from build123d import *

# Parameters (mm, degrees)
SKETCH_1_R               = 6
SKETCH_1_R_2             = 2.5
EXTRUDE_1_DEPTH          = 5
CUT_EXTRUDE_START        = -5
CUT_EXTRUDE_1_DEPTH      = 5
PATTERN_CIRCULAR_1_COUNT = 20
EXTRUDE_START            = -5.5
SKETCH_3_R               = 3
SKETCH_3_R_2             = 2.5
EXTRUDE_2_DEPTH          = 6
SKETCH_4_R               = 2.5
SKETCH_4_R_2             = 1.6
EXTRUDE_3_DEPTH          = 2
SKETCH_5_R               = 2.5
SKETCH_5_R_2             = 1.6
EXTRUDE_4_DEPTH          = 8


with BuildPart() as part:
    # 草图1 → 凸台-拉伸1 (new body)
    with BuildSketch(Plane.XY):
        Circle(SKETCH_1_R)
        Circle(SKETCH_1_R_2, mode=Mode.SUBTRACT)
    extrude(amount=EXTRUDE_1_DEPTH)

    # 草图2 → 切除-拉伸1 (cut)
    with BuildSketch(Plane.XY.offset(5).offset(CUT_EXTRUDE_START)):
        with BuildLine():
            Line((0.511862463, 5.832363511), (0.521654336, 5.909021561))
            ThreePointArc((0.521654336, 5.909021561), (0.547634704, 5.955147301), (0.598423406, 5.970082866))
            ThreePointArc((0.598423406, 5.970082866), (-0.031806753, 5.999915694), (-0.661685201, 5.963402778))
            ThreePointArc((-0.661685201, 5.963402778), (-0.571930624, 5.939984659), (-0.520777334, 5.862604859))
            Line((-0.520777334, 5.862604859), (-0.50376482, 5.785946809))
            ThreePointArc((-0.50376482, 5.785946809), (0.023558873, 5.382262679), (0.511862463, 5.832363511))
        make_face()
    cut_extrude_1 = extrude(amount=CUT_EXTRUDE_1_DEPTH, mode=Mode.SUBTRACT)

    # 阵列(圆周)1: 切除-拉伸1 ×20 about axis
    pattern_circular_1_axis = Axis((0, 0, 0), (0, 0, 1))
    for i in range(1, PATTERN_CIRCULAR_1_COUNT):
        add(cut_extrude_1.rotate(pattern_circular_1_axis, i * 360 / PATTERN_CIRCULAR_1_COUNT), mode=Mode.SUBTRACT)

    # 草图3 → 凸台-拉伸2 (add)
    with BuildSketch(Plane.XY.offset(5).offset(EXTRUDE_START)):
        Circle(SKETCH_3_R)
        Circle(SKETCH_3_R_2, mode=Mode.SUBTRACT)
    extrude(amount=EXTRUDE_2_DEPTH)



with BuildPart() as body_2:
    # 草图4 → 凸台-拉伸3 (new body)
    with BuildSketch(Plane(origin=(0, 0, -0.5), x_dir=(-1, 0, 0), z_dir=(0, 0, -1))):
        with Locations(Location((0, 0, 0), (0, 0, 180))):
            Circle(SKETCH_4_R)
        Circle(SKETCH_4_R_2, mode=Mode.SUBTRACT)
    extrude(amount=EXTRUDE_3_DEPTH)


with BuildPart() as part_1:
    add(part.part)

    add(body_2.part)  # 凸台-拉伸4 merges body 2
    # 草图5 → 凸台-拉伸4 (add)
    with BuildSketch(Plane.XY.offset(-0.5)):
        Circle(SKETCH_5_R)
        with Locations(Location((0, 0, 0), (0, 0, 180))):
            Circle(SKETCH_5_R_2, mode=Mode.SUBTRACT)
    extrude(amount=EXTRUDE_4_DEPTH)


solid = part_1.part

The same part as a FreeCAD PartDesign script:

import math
import FreeCAD as App
import Part
import Sketcher

V = App.Vector
Q = App.Units.Quantity

doc = App.newDocument("Part")
body = doc.addObject("PartDesign::Body", "Body")

# Sketch on XY plane
sketch1 = doc.addObject("Sketcher::SketchObject", "Sketch")
body.addObject(sketch1)
sketch1.AttachmentSupport = (doc.XY_Plane, [""])
sketch1.MapMode = "FlatFace"
sketch1.addGeometry([
    Part.Circle(V(0, 0, 0), V(0, 0, 1), 6),
    Part.Circle(V(0, 0, 0), V(0, 0, 1), 2.5),
], False)
sketch1.addConstraint([
    Sketcher.Constraint("Coincident", 0, 3, -1, 1),
    Sketcher.Constraint("Coincident", 1, 3, -1, 1),
    Sketcher.Constraint("Diameter", 0, Q("12 mm")),
    Sketcher.Constraint("Diameter", 1, Q("5 mm")),
])
pad1 = doc.addObject("PartDesign::Pad", "Pad")
body.addObject(pad1)
pad1.Profile = sketch1
pad1.Length = 5

# Sketch on XY plane
sketch2 = doc.addObject("Sketcher::SketchObject", "Sketch001")
body.addObject(sketch2)
sketch2.AttachmentSupport = (doc.XY_Plane, [""])
sketch2.MapMode = "FlatFace"
sketch2.addGeometry([
    Part.LineSegment(V(0.511862, 5.832364, 0), V(0.521654, 5.909022, 0)),  # 0
    Part.ArcOfCircle(Part.Circle(V(0.59141, 5.900111, 0), V(0, 0, 1), 0.070322), math.radians(84.275961), math.radians(172.720775)),  # 1
    Part.ArcOfCircle(Part.Circle(V(0, 0, 0), V(0, 0, 1), 6), math.radians(84.27596), math.radians(96.331507)),  # 2
    Part.ArcOfCircle(Part.Circle(V(-0.647383, 5.834508, 0), V(0, 0, 1), 0.129686), math.radians(12.512704), math.radians(96.331507)),  # 3
    Part.LineSegment(V(-0.520777, 5.862605, 0), V(-0.503765, 5.785947, 0)),  # 4
    Part.ArcOfCircle(Part.Circle(V(0, 5.897746, 0), V(0, 0, 1), 0.516021), math.radians(-167.487296), math.radians(-7.279225)),  # 5
], False)
sketch2.addConstraint([
    Sketcher.Constraint("Tangent", 0, 2, 1, 2),
    Sketcher.Constraint("Tangent", 1, 1, 2, 1),
    Sketcher.Constraint("Tangent", 2, 2, 3, 2),
    Sketcher.Constraint("Tangent", 3, 1, 4, 1),
    Sketcher.Constraint("Tangent", 4, 2, 5, 1),
    Sketcher.Constraint("Tangent", 5, 2, 0, 1),
    Sketcher.Constraint("Coincident", 2, 3, -1, 1),
    Sketcher.Constraint("PointOnObject", 5, 3, -2),
    Sketcher.Constraint("Radius", 2, Q("6 mm")),
    Sketcher.Constraint("Radius", 5, Q("0.516021 mm")),
    Sketcher.Constraint("Radius", 1, Q("0.070322 mm")),
    Sketcher.Constraint("Radius", 3, Q("0.129686 mm")),
    Sketcher.Constraint("DistanceY", 4, 2, 5, 3, Q("0.111799 mm")),
    Sketcher.Constraint("Distance", 0, Q("0.077281 mm")),
    Sketcher.Constraint("DistanceY", -1, 1, 0, 2, Q("5.909022 mm")),
])
pocket1 = doc.addObject("PartDesign::Pocket", "Pocket")
body.addObject(pocket1)
pocket1.Profile = sketch2
pocket1.Length = 5
pocket1.Reversed = True
doc.recompute()

polarpattern = doc.addObject("PartDesign::PolarPattern", "PolarPattern")
body.addObject(polarpattern)
polarpattern.Originals = [pocket1]
polarpattern.Axis = (doc.Z_Axis, [""])
polarpattern.Angle = 360
polarpattern.Occurrences = 20
body.Tip = polarpattern

# Sketch on XY plane
sketch3 = doc.addObject("Sketcher::SketchObject", "Sketch002")
body.addObject(sketch3)
sketch3.AttachmentSupport = (doc.XY_Plane, [""])
sketch3.MapMode = "FlatFace"
sketch3.AttachmentOffset = App.Placement(V(0, 0, -0.5), App.Rotation())
sketch3.addGeometry([
    Part.Circle(V(0, 0, 0), V(0, 0, 1), 3),
    Part.Circle(V(0, 0, 0), V(0, 0, 1), 2.5),
], False)
sketch3.addConstraint([
    Sketcher.Constraint("Coincident", 0, 3, -1, 1),
    Sketcher.Constraint("Coincident", 1, 3, -1, 1),
    Sketcher.Constraint("Diameter", 0, Q("6 mm")),
    Sketcher.Constraint("Diameter", 1, Q("5 mm")),
])
pad2 = doc.addObject("PartDesign::Pad", "Pad001")
body.addObject(pad2)
pad2.Profile = sketch3
pad2.Length = 6
body2 = doc.addObject("PartDesign::Body", "Body001")

# Sketch on XY plane
sketch4 = doc.addObject("Sketcher::SketchObject", "Sketch003")
body2.addObject(sketch4)
sketch4.AttachmentSupport = (doc.getObject("XY_Plane001"), [""])
sketch4.MapMode = "FlatFace"
sketch4.AttachmentOffset = App.Placement(V(0, 0, -0.5), App.Rotation())
sketch4.addGeometry([
    Part.Circle(V(0, 0, 0), V(0, 0, 1), 2.5),
    Part.Circle(V(0, 0, 0), V(0, 0, 1), 1.6),
], False)
sketch4.addConstraint([
    Sketcher.Constraint("Coincident", 0, 3, -1, 1),
    Sketcher.Constraint("Coincident", 1, 3, -1, 1),
    Sketcher.Constraint("Diameter", 0, Q("5 mm")),
    Sketcher.Constraint("Diameter", 1, Q("3.2 mm")),
])
pad3 = doc.addObject("PartDesign::Pad", "Pad002")
body2.addObject(pad3)
pad3.Profile = sketch4
pad3.Length = 2
pad3.Reversed = True
body.AllowCompound = True
doc.recompute()

boolean = doc.addObject("PartDesign::Boolean", "Boolean")
body.addObject(boolean)
boolean.Type = "Fuse"
boolean.addObjects([body2])

# Sketch on XY plane
sketch5 = doc.addObject("Sketcher::SketchObject", "Sketch004")
body.addObject(sketch5)
sketch5.AttachmentSupport = (doc.XY_Plane, [""])
sketch5.MapMode = "FlatFace"
sketch5.AttachmentOffset = App.Placement(V(0, 0, -0.5), App.Rotation())
sketch5.addGeometry([
    Part.Circle(V(0, 0, 0), V(0, 0, 1), 2.5),
    Part.Circle(V(0, 0, 0), V(0, 0, 1), 1.6),
], False)
sketch5.addConstraint([
    Sketcher.Constraint("Coincident", 0, 3, -1, 1),
    Sketcher.Constraint("Coincident", 1, 3, -1, 1),
    Sketcher.Constraint("Diameter", 0, Q("5 mm")),
    Sketcher.Constraint("Diameter", 1, Q("3.2 mm")),
])
pad4 = doc.addObject("PartDesign::Pad", "Pad003")
body.addObject(pad4)
pad4.Profile = sketch5
pad4.Length = 8

doc.recompute()
